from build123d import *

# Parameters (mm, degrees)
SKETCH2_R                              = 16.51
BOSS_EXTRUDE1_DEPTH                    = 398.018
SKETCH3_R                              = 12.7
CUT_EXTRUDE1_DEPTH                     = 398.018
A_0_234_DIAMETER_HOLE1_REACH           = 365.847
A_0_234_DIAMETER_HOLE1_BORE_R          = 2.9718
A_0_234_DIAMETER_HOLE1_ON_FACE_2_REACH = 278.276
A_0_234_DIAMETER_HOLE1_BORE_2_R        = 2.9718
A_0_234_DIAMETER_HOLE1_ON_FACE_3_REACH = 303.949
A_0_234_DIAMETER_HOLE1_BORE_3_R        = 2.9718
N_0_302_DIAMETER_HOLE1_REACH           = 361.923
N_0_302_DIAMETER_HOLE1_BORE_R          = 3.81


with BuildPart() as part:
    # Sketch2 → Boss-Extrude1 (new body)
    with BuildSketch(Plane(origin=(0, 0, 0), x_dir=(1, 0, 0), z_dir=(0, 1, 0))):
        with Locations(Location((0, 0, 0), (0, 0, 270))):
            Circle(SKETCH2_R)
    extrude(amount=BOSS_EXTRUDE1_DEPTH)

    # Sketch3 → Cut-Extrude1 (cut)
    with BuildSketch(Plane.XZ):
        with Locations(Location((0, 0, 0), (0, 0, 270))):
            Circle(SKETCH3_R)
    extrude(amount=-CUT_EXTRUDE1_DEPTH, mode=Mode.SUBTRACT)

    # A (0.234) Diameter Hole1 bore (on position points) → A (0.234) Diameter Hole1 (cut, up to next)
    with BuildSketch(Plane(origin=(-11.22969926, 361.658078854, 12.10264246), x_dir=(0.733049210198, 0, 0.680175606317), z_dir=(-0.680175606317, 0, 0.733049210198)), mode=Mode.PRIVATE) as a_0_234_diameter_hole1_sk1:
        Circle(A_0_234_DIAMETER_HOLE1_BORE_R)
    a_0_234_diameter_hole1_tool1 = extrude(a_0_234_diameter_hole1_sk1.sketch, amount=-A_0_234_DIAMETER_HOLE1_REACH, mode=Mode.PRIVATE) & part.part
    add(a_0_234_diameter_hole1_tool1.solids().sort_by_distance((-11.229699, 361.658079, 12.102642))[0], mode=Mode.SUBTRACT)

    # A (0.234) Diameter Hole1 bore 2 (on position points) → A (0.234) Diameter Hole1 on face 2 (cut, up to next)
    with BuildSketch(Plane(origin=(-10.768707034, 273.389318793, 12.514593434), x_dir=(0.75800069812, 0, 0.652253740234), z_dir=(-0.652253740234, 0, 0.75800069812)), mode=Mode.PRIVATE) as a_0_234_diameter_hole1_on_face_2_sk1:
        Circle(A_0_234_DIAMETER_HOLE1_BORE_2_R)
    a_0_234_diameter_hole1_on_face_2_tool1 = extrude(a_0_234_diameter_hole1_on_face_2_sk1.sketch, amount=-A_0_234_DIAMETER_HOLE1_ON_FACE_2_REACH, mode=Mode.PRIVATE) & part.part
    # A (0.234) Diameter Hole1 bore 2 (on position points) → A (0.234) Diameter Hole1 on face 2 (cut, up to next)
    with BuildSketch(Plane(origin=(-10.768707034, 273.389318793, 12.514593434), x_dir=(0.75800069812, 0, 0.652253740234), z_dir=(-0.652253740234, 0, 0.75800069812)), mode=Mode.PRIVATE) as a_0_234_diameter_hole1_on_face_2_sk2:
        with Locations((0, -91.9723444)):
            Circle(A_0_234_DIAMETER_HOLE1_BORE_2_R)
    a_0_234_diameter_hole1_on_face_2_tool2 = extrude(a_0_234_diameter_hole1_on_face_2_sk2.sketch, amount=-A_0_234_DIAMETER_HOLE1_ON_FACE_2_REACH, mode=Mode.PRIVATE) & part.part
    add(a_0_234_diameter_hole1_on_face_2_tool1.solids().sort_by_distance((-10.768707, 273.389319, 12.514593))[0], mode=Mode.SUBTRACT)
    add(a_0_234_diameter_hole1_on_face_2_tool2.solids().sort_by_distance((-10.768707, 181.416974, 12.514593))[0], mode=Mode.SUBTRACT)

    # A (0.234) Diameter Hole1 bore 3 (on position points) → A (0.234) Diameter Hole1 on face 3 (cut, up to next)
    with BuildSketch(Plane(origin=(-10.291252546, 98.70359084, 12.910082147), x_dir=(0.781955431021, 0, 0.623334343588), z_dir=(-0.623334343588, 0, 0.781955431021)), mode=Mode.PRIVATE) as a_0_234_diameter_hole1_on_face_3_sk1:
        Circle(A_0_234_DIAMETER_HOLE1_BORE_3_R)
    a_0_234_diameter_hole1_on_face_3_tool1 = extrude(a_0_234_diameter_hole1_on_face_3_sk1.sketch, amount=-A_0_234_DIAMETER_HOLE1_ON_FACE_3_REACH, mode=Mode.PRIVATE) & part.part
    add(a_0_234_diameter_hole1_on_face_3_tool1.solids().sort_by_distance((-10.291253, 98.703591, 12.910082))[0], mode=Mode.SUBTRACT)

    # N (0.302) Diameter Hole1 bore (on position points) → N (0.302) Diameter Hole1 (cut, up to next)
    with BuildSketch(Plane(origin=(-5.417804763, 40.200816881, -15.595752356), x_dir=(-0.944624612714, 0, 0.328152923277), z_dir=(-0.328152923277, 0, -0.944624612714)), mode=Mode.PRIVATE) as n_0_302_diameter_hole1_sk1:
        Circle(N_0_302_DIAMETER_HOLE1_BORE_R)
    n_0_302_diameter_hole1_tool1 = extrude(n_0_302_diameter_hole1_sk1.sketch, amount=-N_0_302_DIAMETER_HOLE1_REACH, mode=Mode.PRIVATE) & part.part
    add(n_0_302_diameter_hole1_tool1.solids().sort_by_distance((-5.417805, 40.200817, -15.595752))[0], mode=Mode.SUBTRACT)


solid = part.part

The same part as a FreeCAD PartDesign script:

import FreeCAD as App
import Part
import Sketcher
from FreeCAD import Vector
Q = App.Units.Quantity

doc = App.newDocument("Part")
body = doc.addObject("PartDesign::Body", "Body")

# Sketch on XZ plane
sketch1 = body.newObject("Sketcher::SketchObject", "Sketch")
sketch1.AttachmentSupport = (doc.getObject("XZ_Plane"), [""])
sketch1.MapMode = "FlatFace"
sketch1.addGeometry(Part.Circle(Vector(0, 0, 0), Vector(0, 0, 1), 16.51), False)
sketch1.addConstraint(Sketcher.Constraint("Coincident", 0, 3, -1, 1))
sketch1.addConstraint(Sketcher.Constraint("Diameter", 0, Q("1.3 in")))
pad1 = body.newObject("PartDesign::Pad", "Pad")
pad1.Profile = sketch1
pad1.Length = Q("15.67 in")
pad1.Reversed = True

# Sketch on XZ plane
sketch2 = body.newObject("Sketcher::SketchObject", "Sketch001")
sketch2.AttachmentSupport = (doc.getObject("XZ_Plane"), [""])
sketch2.MapMode = "FlatFace"
sketch2.addGeometry(Part.Circle(Vector(0, 0, 0), Vector(0, 0, 1), 12.7), False)
sketch2.addConstraint(Sketcher.Constraint("Coincident", 0, 3, -1, 1))
sketch2.addConstraint(Sketcher.Constraint("Diameter", 0, Q("1 in")))
pocket1 = body.newObject("PartDesign::Pocket", "Pocket")
pocket1.Profile = sketch2
pocket1.Length = Q("15.67 in")

# Sketch on an angled plane
sketch3 = body.newObject("Sketcher::SketchObject", "Sketch002")
sketch3.Placement = App.Placement(Vector(-11.229699, 361.658079, 12.102642), App.Rotation(Vector(0.73304921, 0, 0.680175606), Vector(0, 0.999999999, 0), Vector(-0.680175606, 0, 0.73304921), "ZXY"))
sketch3.addGeometry(Part.Circle(Vector(0, 0, 0), Vector(0, 0, 1), 2.9718), False)
sketch3.addConstraint(Sketcher.Constraint("Coincident", 0, 3, -1, 1))
sketch3.addConstraint(Sketcher.Constraint("Diameter", 0, Q("0.234 in")))
pocket2 = body.newObject("PartDesign::Pocket", "Pocket001")
pocket2.Profile = sketch3
pocket2.Type = "UpToFirst"

# Sketch on an angled plane
sketch4 = body.newObject("Sketcher::SketchObject", "Sketch003")
sketch4.Placement = App.Placement(Vector(-10.768707, 273.389319, 12.514593), App.Rotation(Vector(0.758000698, 0, 0.65225374), Vector(0, 1, 0), Vector(-0.65225374, 0, 0.758000698), "ZXY"))
sketch4.addGeometry(Part.Circle(Vector(0, 0, 0), Vector(0, 0, 1), 2.9718), False)
sketch4.addConstraint(Sketcher.Constraint("Coincident", 0, 3, -1, 1))
sketch4.addConstraint(Sketcher.Constraint("Diameter", 0, Q("0.234 in")))
pocket3 = body.newObject("PartDesign::Pocket", "Pocket002")
pocket3.Profile = sketch4
pocket3.Type = "UpToFirst"

# Sketch on an angled plane
sketch5 = body.newObject("Sketcher::SketchObject", "Sketch004")
sketch5.Placement = App.Placement(Vector(-10.768707, 273.389319, 12.514593), App.Rotation(Vector(0.758000698, 0, 0.65225374), Vector(0, 1, 0), Vector(-0.65225374, 0, 0.758000698), "ZXY"))
sketch5.addGeometry(Part.Circle(Vector(0, -91.972344, 0), Vector(0, 0, 1), 2.9718), False)
sketch5.addConstraint(Sketcher.Constraint("PointOnObject", 0, 3, -2))
sketch5.addConstraint(Sketcher.Constraint("Diameter", 0, Q("0.234 in")))
sketch5.addConstraint(Sketcher.Constraint("DistanceY", 0, 3, -1, 1, Q("91.972344 mm")))
pocket4 = body.newObject("PartDesign::Pocket", "Pocket003")
pocket4.Profile = sketch5
pocket4.Type = "UpToFirst"

# Sketch on an angled plane
sketch6 = body.newObject("Sketcher::SketchObject", "Sketch005")
sketch6.Placement = App.Placement(Vector(-10.291253, 98.703591, 12.910082), App.Rotation(Vector(0.781955431, 0, 0.623334344), Vector(0, 1, 0), Vector(-0.623334344, 0, 0.781955431), "ZXY"))
sketch6.addGeometry(Part.Circle(Vector(0, 0, 0), Vector(0, 0, 1), 2.9718), False)
sketch6.addConstraint(Sketcher.Constraint("Coincident", 0, 3, -1, 1))
sketch6.addConstraint(Sketcher.Constraint("Diameter", 0, Q("0.234 in")))
pocket5 = body.newObject("PartDesign::Pocket", "Pocket004")
pocket5.Profile = sketch6
pocket5.Type = "UpToFirst"

# Sketch on an angled plane
sketch7 = body.newObject("Sketcher::SketchObject", "Sketch006")
sketch7.Placement = App.Placement(Vector(-5.417805, 40.200817, -15.595752), App.Rotation(Vector(-0.944624613, 0, 0.328152923), Vector(0, 1, 0), Vector(-0.328152923, 0, -0.944624613), "ZXY"))
sketch7.addGeometry(Part.Circle(Vector(0, 0, 0), Vector(0, 0, 1), 3.81), False)
sketch7.addConstraint(Sketcher.Constraint("Coincident", 0, 3, -1, 1))
sketch7.addConstraint(Sketcher.Constraint("Diameter", 0, Q("0.3 in")))
pocket6 = body.newObject("PartDesign::Pocket", "Pocket005")
pocket6.Profile = sketch7
pocket6.Type = "UpToFirst"

doc.recompute()
